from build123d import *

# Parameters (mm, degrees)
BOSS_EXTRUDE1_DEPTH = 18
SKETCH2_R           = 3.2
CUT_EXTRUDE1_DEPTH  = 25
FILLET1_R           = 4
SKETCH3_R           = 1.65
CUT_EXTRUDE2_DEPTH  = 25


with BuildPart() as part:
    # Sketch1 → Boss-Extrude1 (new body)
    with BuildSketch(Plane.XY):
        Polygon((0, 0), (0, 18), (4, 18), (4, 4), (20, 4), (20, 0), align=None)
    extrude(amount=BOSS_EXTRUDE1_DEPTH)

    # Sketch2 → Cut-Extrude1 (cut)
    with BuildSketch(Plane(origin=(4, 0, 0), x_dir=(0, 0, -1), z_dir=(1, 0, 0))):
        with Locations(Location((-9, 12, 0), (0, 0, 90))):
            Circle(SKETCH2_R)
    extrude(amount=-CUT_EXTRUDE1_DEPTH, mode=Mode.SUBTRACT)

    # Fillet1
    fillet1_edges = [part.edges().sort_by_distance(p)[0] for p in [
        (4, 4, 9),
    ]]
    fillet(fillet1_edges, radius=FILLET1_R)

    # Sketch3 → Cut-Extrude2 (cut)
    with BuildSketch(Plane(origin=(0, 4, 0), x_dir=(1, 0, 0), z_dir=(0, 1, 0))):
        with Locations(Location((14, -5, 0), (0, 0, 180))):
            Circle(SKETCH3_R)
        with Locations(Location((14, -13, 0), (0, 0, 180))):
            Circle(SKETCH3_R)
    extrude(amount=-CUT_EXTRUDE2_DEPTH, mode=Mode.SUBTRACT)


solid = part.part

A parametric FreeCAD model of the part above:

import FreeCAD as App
import Part
import Sketcher

V = App.Vector
Q = App.Units.Quantity


def edges_at(feature, points):
    """Names of the edges that pass closest to the given points."""
    edges = feature.Shape.Edges
    near = lambda p: min(range(len(edges)), key=lambda i: edges[i].distToShape(Part.Vertex(*p))[0])
    return sorted({f"Edge{near(p) + 1}" for p in points})


def add_polygon(sketch, points):
    """Adds a closed chain of lines whose ends are joined by coincident constraints."""
    first, n = sketch.GeometryCount, len(points)
    for a, b in zip(points, points[1:] + points[:1]):
        sketch.addGeometry(Part.LineSegment(App.Vector(*a, 0), App.Vector(*b, 0)), False)
    for i in range(n):
        sketch.addConstraint(Sketcher.Constraint("Coincident", first + i, 2, first + (i + 1) % n, 1))

doc = App.newDocument("Part")
params = doc.addObject("Spreadsheet::Sheet", "Params")
for row, (alias, value) in enumerate([
    ("sketch1_width", "20 mm"),
    ("sketch1_width2", "16 mm"),
    ("sketch1_height", "18 mm"),
    ("pad1_length", "18 mm"),
    ("sketch2_diameter", "6.4 mm"),
    ("pocket1_length", "25 mm"),
    ("fillet_radius", "4 mm"),
    ("sketch3_diameter", "3.3 mm"),
    ("pocket2_length", "25 mm"),
], start=1):
    params.set(f"A{row}", alias)
    params.set(f"B{row}", "=" + value)
    params.setAlias(f"B{row}", alias)

body = doc.addObject("PartDesign::Body", "Body")

sketch1 = body.newObject("Sketcher::SketchObject", "Sketch")
sketch1.AttachmentSupport = (doc.getObject("XY_Plane"), [""])
sketch1.MapMode = "FlatFace"
add_polygon(sketch1, [(0, 18), (0, 0), (20, 0), (20, 4), (4, 4), (4, 18)])
sketch1.addConstraint([
    Sketcher.Constraint("Vertical", 0),
    Sketcher.Constraint("Horizontal", 1),
    Sketcher.Constraint("Vertical", 2),
    Sketcher.Constraint("Horizontal", 3),
    Sketcher.Constraint("Vertical", 4),
    Sketcher.Constraint("Horizontal", 5),
    Sketcher.Constraint("Coincident", 0, 2, -1, 1),
    Sketcher.Constraint("Equal", 5, 2),
    Sketcher.Constraint("DistanceX", 1, 1, 1, 2, Q("20 mm")),
    Sketcher.Constraint("DistanceX", 3, 2, 3, 1, Q("16 mm")),
    Sketcher.Constraint("DistanceY", 0, 2, 0, 1, Q("18 mm")),
])
sketch1.setExpression("Constraints[14]", "Params.sketch1_width")
sketch1.setExpression("Constraints[15]", "Params.sketch1_width2")
sketch1.setExpression("Constraints[16]", "Params.sketch1_height")
pad1 = body.newObject("PartDesign::Pad", "Pad")
pad1.Profile = sketch1
pad1.setExpression("Length", "Params.pad1_length")

sketch2 = body.newObject("Sketcher::SketchObject", "Sketch001")
sketch2.AttachmentSupport = (doc.getObject("YZ_Plane"), [""])
sketch2.MapMode = "FlatFace"
sketch2.AttachmentOffset = App.Placement(V(0, 0, 4), App.Rotation())
sketch2.addGeometry(Part.Circle(V(12, 9, 0), V(0, 0, 1), 3.2), False)
sketch2.addConstraint([
    Sketcher.Constraint("Diameter", 0, Q("6.4 mm")),
    Sketcher.Constraint("DistanceX", -1, 1, 0, 3, Q("12 mm")),
    Sketcher.Constraint("DistanceY", -1, 1, 0, 3, Q("9 mm")),
])
sketch2.setExpression("Constraints[0]", "Params.sketch2_diameter")
pocket1 = body.newObject("PartDesign::Pocket", "Pocket")
pocket1.Profile = sketch2
pocket1.setExpression("Length", "Params.pocket1_length")
doc.recompute()

fillet = body.newObject("PartDesign::Fillet", "Fillet")
fillet.Base = (pocket1, edges_at(pocket1, [(4, 4, 9)]))
fillet.setExpression("Radius", "Params.fillet_radius")

sketch3 = body.newObject("Sketcher::SketchObject", "Sketch002")
sketch3.AttachmentSupport = (doc.getObject("XZ_Plane"), [""])
sketch3.MapMode = "FlatFace"
sketch3.AttachmentOffset = App.Placement(V(0, 0, -4), App.Rotation())
sketch3.addGeometry([
    Part.Circle(V(14, 5, 0), V(0, 0, 1), 1.65),
    Part.Circle(V(14, 13, 0), V(0, 0, 1), 1.65),
], False)
sketch3.addConstraint([
    Sketcher.Constraint("Equal", 0, 1),
    Sketcher.Constraint("Vertical", 0, 3, 1, 3),
    Sketcher.Constraint("Diameter", 0, Q("3.3 mm")),
    Sketcher.Constraint("DistanceX", -1, 1, 0, 3, Q("14 mm")),
    Sketcher.Constraint("DistanceY", -1, 1, 0, 3, Q("5 mm")),
    Sketcher.Constraint("DistanceY", -1, 1, 1, 3, Q("13 mm")),
])
sketch3.setExpression("Constraints[2]", "Params.sketch3_diameter")
pocket2 = body.newObject("PartDesign::Pocket", "Pocket001")
pocket2.Profile = sketch3
pocket2.setExpression("Length", "Params.pocket2_length")
pocket2.Reversed = True

doc.recompute()
